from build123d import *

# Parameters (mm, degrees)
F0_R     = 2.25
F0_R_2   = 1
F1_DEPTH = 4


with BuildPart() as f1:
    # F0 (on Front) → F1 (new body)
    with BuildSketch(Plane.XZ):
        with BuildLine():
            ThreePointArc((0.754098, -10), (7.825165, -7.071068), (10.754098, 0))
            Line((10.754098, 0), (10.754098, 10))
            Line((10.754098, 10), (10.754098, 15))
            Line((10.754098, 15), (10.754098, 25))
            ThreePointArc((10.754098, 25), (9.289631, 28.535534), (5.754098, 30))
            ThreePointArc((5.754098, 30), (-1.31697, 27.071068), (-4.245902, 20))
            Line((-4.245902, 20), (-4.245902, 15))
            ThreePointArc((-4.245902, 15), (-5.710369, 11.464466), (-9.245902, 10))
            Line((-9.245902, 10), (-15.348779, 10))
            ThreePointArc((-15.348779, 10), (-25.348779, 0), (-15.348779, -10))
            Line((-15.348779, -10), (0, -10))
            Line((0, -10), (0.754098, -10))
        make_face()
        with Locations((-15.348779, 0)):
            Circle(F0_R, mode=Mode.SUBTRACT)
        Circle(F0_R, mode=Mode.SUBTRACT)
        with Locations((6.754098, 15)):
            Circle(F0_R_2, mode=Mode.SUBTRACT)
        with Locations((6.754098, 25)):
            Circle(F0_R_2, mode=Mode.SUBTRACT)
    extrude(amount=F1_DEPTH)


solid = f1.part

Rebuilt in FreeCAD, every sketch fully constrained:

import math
import FreeCAD as App
import Part
import Sketcher
from FreeCAD import Vector
Q = App.Units.Quantity

doc = App.newDocument("Part")
body = doc.addObject("PartDesign::Body", "Body")

# Sketch on XZ plane
sketch1 = doc.addObject("Sketcher::SketchObject", "Sketch")
body.addObject(sketch1)
sketch1.AttachmentSupport = (doc.XZ_Plane, [""])
sketch1.MapMode = "FlatFace"
sketch1.addGeometry(Part.ArcOfCircle(Part.Circle(Vector(0.8, 0, 0), Vector(0, 0, 1), 10), math.radians(-90), math.radians(0)), False)
sketch1.addGeometry(Part.LineSegment(Vector(10.8, 0, 0), Vector(10.8, 25, 0)), False)
sketch1.addGeometry(Part.ArcOfCircle(Part.Circle(Vector(5.8, 25, 0), Vector(0, 0, 1), 5), math.radians(0), math.radians(90)), False)
sketch1.addGeometry(Part.ArcOfCircle(Part.Circle(Vector(5.8, 20, 0), Vector(0, 0, 1), 10), math.radians(90), math.radians(180)), False)
sketch1.addGeometry(Part.LineSegment(Vector(-4.2, 20, 0), Vector(-4.2, 15, 0)), False)
sketch1.addGeometry(Part.ArcOfCircle(Part.Circle(Vector(-9.2, 15, 0), Vector(0, 0, 1), 5), math.radians(-90), math.radians(0)), False)
sketch1.addGeometry(Part.LineSegment(Vector(-9.2, 10, 0), Vector(-15.3, 10, 0)), False)
sketch1.addGeometry(Part.ArcOfCircle(Part.Circle(Vector(-15.3, 0, 0), Vector(0, 0, 1), 10), math.radians(90), math.radians(270)), False)
sketch1.addGeometry(Part.LineSegment(Vector(-15.3, -10, 0), Vector(0.8, -10, 0)), False)
sketch1.addGeometry(Part.Circle(Vector(-15.3, 0, 0), Vector(0, 0, 1), 2.2), False)
sketch1.addGeometry(Part.Circle(Vector(0, 0, 0), Vector(0, 0, 1), 2.2), False)
sketch1.addGeometry(Part.Circle(Vector(6.8, 15, 0), Vector(0, 0, 1), 1), False)
sketch1.addGeometry(Part.Circle(Vector(6.8, 25, 0), Vector(0, 0, 1), 1), False)
sketch1.addConstraint(Sketcher.Constraint("Tangent", 0, 2, 1, 1))
sketch1.addConstraint(Sketcher.Constraint("Tangent", 1, 2, 2, 1))
sketch1.addConstraint(Sketcher.Constraint("Tangent", 2, 2, 3, 1))
sketch1.addConstraint(Sketcher.Constraint("Tangent", 3, 2, 4, 1))
sketch1.addConstraint(Sketcher.Constraint("Tangent", 4, 2, 5, 2))
sketch1.addConstraint(Sketcher.Constraint("Tangent", 5, 1, 6, 1))
sketch1.addConstraint(Sketcher.Constraint("Tangent", 6, 2, 7, 1))
sketch1.addConstraint(Sketcher.Constraint("Tangent", 7, 2, 8, 1))
sketch1.addConstraint(Sketcher.Constraint("Tangent", 8, 2, 0, 1))
sketch1.addConstraint(Sketcher.Constraint("Vertical", 1))
sketch1.addConstraint(Sketcher.Constraint("Vertical", 4))
sketch1.addConstraint(Sketcher.Constraint("Horizontal", 6))
sketch1.addConstraint(Sketcher.Constraint("Horizontal", 8))
sketch1.addConstraint(Sketcher.Constraint("Coincident", 10, 3, -1, 1))
sketch1.addConstraint(Sketcher.Constraint("Coincident", 9, 3, 7, 3))
sketch1.addConstraint(Sketcher.Constraint("Equal", 0, 3))
sketch1.addConstraint(Sketcher.Constraint("Equal", 2, 5))
sketch1.addConstraint(Sketcher.Constraint("Equal", 3, 7))
sketch1.addConstraint(Sketcher.Constraint("Equal", 9, 10))
sketch1.addConstraint(Sketcher.Constraint("Equal", 11, 12))
sketch1.addConstraint(Sketcher.Constraint("PointOnObject", 0, 3, -1))
sketch1.addConstraint(Sketcher.Constraint("Horizontal", 5, 3, 11, 3))
sketch1.addConstraint(Sketcher.Constraint("Horizontal", 2, 3, 12, 3))
sketch1.addConstraint(Sketcher.Constraint("Vertical", 2, 3, 3, 3))
sketch1.addConstraint(Sketcher.Constraint("Vertical", 11, 3, 12, 3))
sketch1.addConstraint(Sketcher.Constraint("Diameter", 11, Q("2 mm")))
sketch1.addConstraint(Sketcher.Constraint("Radius", 0, Q("10.000001 mm")))
sketch1.addConstraint(Sketcher.Constraint("Radius", 2, Q("5.000001 mm")))
sketch1.addConstraint(Sketcher.Constraint("Diameter", 9, Q("4.5 mm")))
sketch1.addConstraint(Sketcher.Constraint("DistanceY", 1, 1, 1, 2, Q("25 mm")))
sketch1.addConstraint(Sketcher.Constraint("DistanceX", 3, 3, 11, 3, Q("1.000001 mm")))
sketch1.addConstraint(Sketcher.Constraint("DistanceX", -1, 1, 1, 2, Q("10.754098 mm")))
sketch1.addConstraint(Sketcher.Constraint("DistanceX", 6, 2, 6, 1, Q("6.102877 mm")))
pad1 = doc.addObject("PartDesign::Pad", "Pad")
body.addObject(pad1)
pad1.Profile = sketch1
pad1.Length = 4

doc.recompute()
